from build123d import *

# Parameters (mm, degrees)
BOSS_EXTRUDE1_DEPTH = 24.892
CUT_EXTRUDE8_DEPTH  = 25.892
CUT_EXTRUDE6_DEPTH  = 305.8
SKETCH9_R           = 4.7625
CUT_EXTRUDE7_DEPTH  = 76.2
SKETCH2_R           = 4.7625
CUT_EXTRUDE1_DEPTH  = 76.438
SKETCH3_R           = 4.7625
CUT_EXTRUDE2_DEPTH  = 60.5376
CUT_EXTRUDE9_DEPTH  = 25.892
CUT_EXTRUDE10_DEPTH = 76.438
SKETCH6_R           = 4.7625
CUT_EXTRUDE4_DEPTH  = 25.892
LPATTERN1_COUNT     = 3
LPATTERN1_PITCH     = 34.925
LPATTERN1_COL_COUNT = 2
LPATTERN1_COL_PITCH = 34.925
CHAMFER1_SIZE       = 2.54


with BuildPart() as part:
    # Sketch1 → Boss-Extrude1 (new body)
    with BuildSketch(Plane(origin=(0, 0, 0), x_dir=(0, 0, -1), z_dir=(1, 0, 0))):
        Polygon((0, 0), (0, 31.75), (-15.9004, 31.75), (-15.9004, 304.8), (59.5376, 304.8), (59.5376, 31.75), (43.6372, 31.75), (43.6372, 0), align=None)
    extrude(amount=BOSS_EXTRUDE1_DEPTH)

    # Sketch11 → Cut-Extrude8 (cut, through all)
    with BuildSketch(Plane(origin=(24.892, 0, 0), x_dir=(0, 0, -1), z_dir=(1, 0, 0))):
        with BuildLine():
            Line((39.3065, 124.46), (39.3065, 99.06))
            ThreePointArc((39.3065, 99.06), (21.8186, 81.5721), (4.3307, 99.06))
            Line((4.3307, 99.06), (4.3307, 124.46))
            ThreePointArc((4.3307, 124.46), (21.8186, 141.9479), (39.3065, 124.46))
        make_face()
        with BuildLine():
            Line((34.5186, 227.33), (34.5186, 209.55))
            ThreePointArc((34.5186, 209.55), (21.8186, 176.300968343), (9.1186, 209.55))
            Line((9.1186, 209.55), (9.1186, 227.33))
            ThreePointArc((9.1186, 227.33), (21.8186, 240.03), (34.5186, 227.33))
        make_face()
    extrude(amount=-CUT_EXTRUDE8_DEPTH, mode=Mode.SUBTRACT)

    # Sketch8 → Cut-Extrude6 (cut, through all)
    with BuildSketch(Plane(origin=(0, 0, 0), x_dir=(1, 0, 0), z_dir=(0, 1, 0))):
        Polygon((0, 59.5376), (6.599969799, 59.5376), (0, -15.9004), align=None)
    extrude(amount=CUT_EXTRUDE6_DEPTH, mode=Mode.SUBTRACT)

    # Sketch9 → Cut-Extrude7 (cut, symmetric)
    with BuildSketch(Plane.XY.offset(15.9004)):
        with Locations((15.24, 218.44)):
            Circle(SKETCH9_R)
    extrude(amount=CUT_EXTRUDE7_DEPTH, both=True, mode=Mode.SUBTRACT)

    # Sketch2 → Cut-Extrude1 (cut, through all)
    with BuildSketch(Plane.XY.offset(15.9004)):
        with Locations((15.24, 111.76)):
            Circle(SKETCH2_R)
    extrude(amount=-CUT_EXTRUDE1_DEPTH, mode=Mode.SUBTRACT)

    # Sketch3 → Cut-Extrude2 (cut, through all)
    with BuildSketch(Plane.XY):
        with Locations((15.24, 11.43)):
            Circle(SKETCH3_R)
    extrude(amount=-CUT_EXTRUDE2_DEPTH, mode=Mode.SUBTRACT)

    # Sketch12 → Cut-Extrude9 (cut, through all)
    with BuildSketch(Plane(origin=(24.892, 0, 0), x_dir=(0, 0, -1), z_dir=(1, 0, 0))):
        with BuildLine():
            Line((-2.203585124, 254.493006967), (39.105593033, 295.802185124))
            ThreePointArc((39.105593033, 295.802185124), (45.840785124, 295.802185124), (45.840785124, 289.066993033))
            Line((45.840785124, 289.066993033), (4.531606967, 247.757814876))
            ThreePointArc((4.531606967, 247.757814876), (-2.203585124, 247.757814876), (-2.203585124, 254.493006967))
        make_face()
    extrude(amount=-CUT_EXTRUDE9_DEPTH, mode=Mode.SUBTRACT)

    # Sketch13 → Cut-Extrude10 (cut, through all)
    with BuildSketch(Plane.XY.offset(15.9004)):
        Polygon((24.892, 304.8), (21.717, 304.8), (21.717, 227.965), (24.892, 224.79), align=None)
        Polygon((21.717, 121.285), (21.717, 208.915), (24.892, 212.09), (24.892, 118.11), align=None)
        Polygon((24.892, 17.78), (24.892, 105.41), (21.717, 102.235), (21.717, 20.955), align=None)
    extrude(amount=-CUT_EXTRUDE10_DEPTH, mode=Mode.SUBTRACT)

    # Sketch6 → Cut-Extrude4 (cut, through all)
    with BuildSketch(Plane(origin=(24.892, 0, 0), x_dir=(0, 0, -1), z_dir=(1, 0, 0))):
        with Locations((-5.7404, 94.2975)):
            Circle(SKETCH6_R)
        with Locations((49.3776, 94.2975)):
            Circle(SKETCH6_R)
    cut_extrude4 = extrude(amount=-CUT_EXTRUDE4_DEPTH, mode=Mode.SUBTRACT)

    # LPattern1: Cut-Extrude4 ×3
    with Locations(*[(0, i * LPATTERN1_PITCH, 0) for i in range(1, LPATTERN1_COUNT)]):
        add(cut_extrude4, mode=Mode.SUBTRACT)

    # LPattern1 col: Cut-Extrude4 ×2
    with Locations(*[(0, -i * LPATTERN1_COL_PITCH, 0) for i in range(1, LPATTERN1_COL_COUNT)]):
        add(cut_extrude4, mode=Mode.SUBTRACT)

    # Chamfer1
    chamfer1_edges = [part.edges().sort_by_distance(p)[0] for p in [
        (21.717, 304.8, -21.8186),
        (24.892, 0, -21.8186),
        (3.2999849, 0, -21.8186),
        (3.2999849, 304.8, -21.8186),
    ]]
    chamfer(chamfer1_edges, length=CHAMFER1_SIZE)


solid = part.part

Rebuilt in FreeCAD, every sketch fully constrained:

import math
import FreeCAD as App
import Part
import Sketcher

V = App.Vector
Q = App.Units.Quantity


def edges_at(feature, points):
    """Names of the edges that pass closest to the given points."""
    edges = feature.Shape.Edges
    near = lambda p: min(range(len(edges)), key=lambda i: edges[i].distToShape(Part.Vertex(*p))[0])
    return sorted({f"Edge{near(p) + 1}" for p in points})

doc = App.newDocument("Part")
body = doc.addObject("PartDesign::Body", "Body")

sketch1 = body.newObject("Sketcher::SketchObject", "Sketch")
sketch1.AttachmentSupport = (doc.getObject("YZ_Plane"), [""])
sketch1.MapMode = "FlatFace"
sketch1.addGeometry([
    Part.LineSegment(V(31.75, 0, 0), V(0, 0, 0)),
    Part.LineSegment(V(0, 0, 0), V(0, -43.6372, 0)),
    Part.LineSegment(V(0, -43.6372, 0), V(31.75, -43.6372, 0)),
    Part.LineSegment(V(31.75, -43.6372, 0), V(31.75, -59.5376, 0)),
    Part.LineSegment(V(31.75, -59.5376, 0), V(304.8, -59.5376, 0)),
    Part.LineSegment(V(304.8, -59.5376, 0), V(304.8, 15.9004, 0)),
    Part.LineSegment(V(304.8, 15.9004, 0), V(31.75, 15.9004, 0)),
    Part.LineSegment(V(31.75, 15.9004, 0), V(31.75, 0, 0)),
], False)
sketch1.addConstraint([
    Sketcher.Constraint("Coincident", 0, 2, 1, 1),
    Sketcher.Constraint("Coincident", 1, 2, 2, 1),
    Sketcher.Constraint("Coincident", 2, 2, 3, 1),
    Sketcher.Constraint("Coincident", 3, 2, 4, 1),
    Sketcher.Constraint("Coincident", 4, 2, 5, 1),
    Sketcher.Constraint("Coincident", 5, 2, 6, 1),
    Sketcher.Constraint("Coincident", 6, 2, 7, 1),
    Sketcher.Constraint("Coincident", 7, 2, 0, 1),
    Sketcher.Constraint("Horizontal", 0),
    Sketcher.Constraint("Vertical", 1),
    Sketcher.Constraint("Horizontal", 2),
    Sketcher.Constraint("Vertical", 3),
    Sketcher.Constraint("Horizontal", 4),
    Sketcher.Constraint("Vertical", 5),
    Sketcher.Constraint("Horizontal", 6),
    Sketcher.Constraint("Vertical", 7),
    Sketcher.Constraint("Coincident", 0, 2, -1, 1),
    Sketcher.Constraint("Vertical", 3, 2, 6, 2),
    Sketcher.Constraint("Equal", 3, 7),
    Sketcher.Constraint("DistanceX", -1, 1, 4, 2, Q("12 in")),
    Sketcher.Constraint("DistanceX", 0, 2, 0, 1, Q("1.25 in")),
    Sketcher.Constraint("DistanceY", 5, 1, 5, 2, Q("2.97 in")),
    Sketcher.Constraint("DistanceY", 1, 2, 1, 1, Q("1.718 in")),
])
pad1 = body.newObject("PartDesign::Pad", "Pad")
pad1.Profile = sketch1
pad1.Length = Q("0.98 in")

sketch2 = body.newObject("Sketcher::SketchObject", "Sketch001")
sketch2.AttachmentSupport = (doc.getObject("YZ_Plane"), [""])
sketch2.MapMode = "FlatFace"
sketch2.AttachmentOffset = App.Placement(V(0, 0, 0.98 * 25.4), App.Rotation())
sketch2.addGeometry([
    Part.LineSegment(V(99.06, -39.3065, 0), V(124.46, -39.3065, 0)),
    Part.ArcOfCircle(Part.Circle(V(124.46, -21.8186, 0), V(0, 0, 1), 17.4879), math.radians(-90), math.radians(90)),
    Part.LineSegment(V(124.46, -4.3307, 0), V(99.06, -4.3307, 0)),
    Part.ArcOfCircle(Part.Circle(V(99.06, -21.8186, 0), V(0, 0, 1), 17.4879), math.radians(90), math.radians(270)),
    Part.LineSegment(V(209.55, -34.5186, 0), V(227.33, -34.5186, 0)),
    Part.ArcOfCircle(Part.Circle(V(227.33, -21.8186, 0), V(0, 0, 1), 12.7), math.radians(-90), math.radians(90)),
    Part.LineSegment(V(227.33, -9.1186, 0), V(209.55, -9.1186, 0)),
    Part.ArcOfCircle(Part.Circle(V(195.350968, -21.8186, 0), V(0, 0, 1), 19.05), math.radians(41.810315), math.radians(318.189685)),
], False)
sketch2.addConstraint([
    Sketcher.Constraint("Tangent", 0, 2, 1, 1),
    Sketcher.Constraint("Tangent", 1, 2, 2, 1),
    Sketcher.Constraint("Tangent", 2, 2, 3, 1),
    Sketcher.Constraint("Tangent", 3, 2, 0, 1),
    Sketcher.Constraint("Tangent", 4, 2, 5, 1),
    Sketcher.Constraint("Tangent", 5, 2, 6, 1),
    Sketcher.Constraint("Coincident", 6, 2, 7, 1),
    Sketcher.Constraint("Coincident", 7, 2, 4, 1),
    Sketcher.Constraint("Horizontal", 0),
    Sketcher.Constraint("Horizontal", 2),
    Sketcher.Constraint("Horizontal", 4),
    Sketcher.Constraint("Horizontal", 6),
    Sketcher.Constraint("Horizontal", 3, 3, 5, 3),
    Sketcher.Constraint("Horizontal", 5, 3, 7, 3),
    Sketcher.Constraint("Radius", 5, Q("0.5 in")),
    Sketcher.Constraint("DistanceX", 0, 1, 0, 2, Q("1 in")),
    Sketcher.Constraint("Radius", 7, Q("0.75 in")),
    Sketcher.Constraint("DistanceX", 4, 1, 4, 2, Q("0.7 in")),
    Sketcher.Constraint("DistanceX", -1, 1, 1, 3, Q("4.9 in")),
    Sketcher.Constraint("Radius", 1, Q("0.6885 in")),
    Sketcher.Constraint("DistanceX", -1, 1, 5, 3, Q("8.95 in")),
    Sketcher.Constraint("DistanceY", 1, 3, -1, 1, Q("0.859 in")),
])
pocket1 = body.newObject("PartDesign::Pocket", "Pocket")
pocket1.Profile = sketch2
pocket1.Type = "ThroughAll"

sketch3 = body.newObject("Sketcher::SketchObject", "Sketch002")
sketch3.AttachmentSupport = (doc.getObject("XZ_Plane"), [""])
sketch3.MapMode = "FlatFace"
sketch3.addGeometry([
    Part.LineSegment(V(6.59997, -59.5376, 0), V(0, -59.5376, 0)),
    Part.LineSegment(V(0, -59.5376, 0), V(0, 15.9004, 0)),
    Part.LineSegment(V(0, 15.9004, 0), V(6.59997, -59.5376, 0)),
], False)
sketch3.addConstraint([
    Sketcher.Constraint("Coincident", 0, 2, 1, 1),
    Sketcher.Constraint("Coincident", 1, 2, 2, 1),
    Sketcher.Constraint("Coincident", 2, 2, 0, 1),
    Sketcher.Constraint("Horizontal", 0),
    Sketcher.Constraint("Vertical", 1),
    Sketcher.Constraint("PointOnObject", 0, 2, -2),
    Sketcher.Constraint("Angle", 2, Q("-85 deg")),
    Sketcher.Constraint("DistanceY", 1, 1, 1, 2, Q("2.97 in")),
    Sketcher.Constraint("DistanceY", 0, 2, -1, 1, Q("2.344 in")),
])
pocket2 = body.newObject("PartDesign::Pocket", "Pocket001")
pocket2.Profile = sketch3
pocket2.Type = "ThroughAll"

sketch4 = body.newObject("Sketcher::SketchObject", "Sketch003")
sketch4.AttachmentSupport = (doc.getObject("XY_Plane"), [""])
sketch4.MapMode = "FlatFace"
sketch4.AttachmentOffset = App.Placement(V(0, 0, 0.626 * 25.4), App.Rotation())
sketch4.addGeometry(Part.Circle(V(15.24, 218.44, 0), V(0, 0, 1), 4.7625), False)
sketch4.addConstraint([
    Sketcher.Constraint("Diameter", 0, Q("0.375 in")),
    Sketcher.Constraint("DistanceX", -1, 1, 0, 3, Q("0.6 in")),
    Sketcher.Constraint("DistanceY", -1, 1, 0, 3, Q("8.6 in")),
])
pocket3 = body.newObject("PartDesign::Pocket", "Pocket002")
pocket3.Profile = sketch4
pocket3.Length = Q("6 in")
pocket3.Midplane = True

sketch5 = body.newObject("Sketcher::SketchObject", "Sketch004")
sketch5.AttachmentSupport = (doc.getObject("XY_Plane"), [""])
sketch5.MapMode = "FlatFace"
sketch5.AttachmentOffset = App.Placement(V(0, 0, 0.626 * 25.4), App.Rotation())
sketch5.addGeometry(Part.Circle(V(15.24, 111.76, 0), V(0, 0, 1), 4.7625), False)
sketch5.addConstraint([
    Sketcher.Constraint("Diameter", 0, Q("0.375 in")),
    Sketcher.Constraint("DistanceX", -1, 1, 0, 3, Q("0.6 in")),
    Sketcher.Constraint("DistanceY", -1, 1, 0, 3, Q("4.4 in")),
])
pocket4 = body.newObject("PartDesign::Pocket", "Pocket003")
pocket4.Profile = sketch5
pocket4.Type = "ThroughAll"

sketch6 = body.newObject("Sketcher::SketchObject", "Sketch005")
sketch6.AttachmentSupport = (doc.getObject("XY_Plane"), [""])
sketch6.MapMode = "FlatFace"
sketch6.addGeometry(Part.Circle(V(15.24, 11.43, 0), V(0, 0, 1), 4.7625), False)
sketch6.addConstraint([
    Sketcher.Constraint("Diameter", 0, Q("0.375 in")),
    Sketcher.Constraint("DistanceX", -1, 1, 0, 3, Q("0.6 in")),
    Sketcher.Constraint("DistanceY", -1, 1, 0, 3, Q("0.45 in")),
])
pocket5 = body.newObject("PartDesign::Pocket", "Pocket004")
pocket5.Profile = sketch6
pocket5.Type = "ThroughAll"

sketch7 = body.newObject("Sketcher::SketchObject", "Sketch006")
sketch7.AttachmentSupport = (doc.getObject("YZ_Plane"), [""])
sketch7.MapMode = "FlatFace"
sketch7.AttachmentOffset = App.Placement(V(0, 0, 0.98 * 25.4), App.Rotation())
sketch7.addGeometry([
    Part.LineSegment(V(295.802185, -39.105593, 0), V(254.493007, 2.203585, 0)),
    Part.ArcOfCircle(Part.Circle(V(251.125411, -1.164011, 0), V(0, 0, 1), 4.7625), math.radians(45), math.radians(225)),
    Part.LineSegment(V(247.757815, -4.531607, 0), V(289.066993, -45.840785, 0)),
    Part.ArcOfCircle(Part.Circle(V(292.434589, -42.473189, 0), V(0, 0, 1), 4.7625), math.radians(-135), math.radians(45)),
], False)
sketch7.addConstraint([
    Sketcher.Constraint("Tangent", 0, 2, 1, 1),
    Sketcher.Constraint("Tangent", 1, 2, 2, 1),
    Sketcher.Constraint("Tangent", 2, 2, 3, 1),
    Sketcher.Constraint("Tangent", 3, 2, 0, 1),
    Sketcher.Constraint("Equal", 1, 3),
    Sketcher.Constraint("Angle", 0, Q("135 deg")),
    Sketcher.Constraint("Radius", 1, Q("0.1875 in")),
    Sketcher.Constraint("Distance", 0, Q("2.3 in")),
    Sketcher.Constraint("DistanceX", -1, 1, 1, 3, 251.125411),
    Sketcher.Constraint("DistanceY", 1, 3, -1, 1, 1.164011),
])
pocket6 = body.newObject("PartDesign::Pocket", "Pocket005")
pocket6.Profile = sketch7
pocket6.Type = "ThroughAll"

sketch8 = body.newObject("Sketcher::SketchObject", "Sketch007")
sketch8.AttachmentSupport = (doc.getObject("XY_Plane"), [""])
sketch8.MapMode = "FlatFace"
sketch8.AttachmentOffset = App.Placement(V(0, 0, 0.626 * 25.4), App.Rotation())
sketch8.addGeometry([
    Part.LineSegment(V(24.892, 304.8, 0), V(21.717, 304.8, 0)),
    Part.LineSegment(V(21.717, 304.8, 0), V(21.717, 227.965, 0)),
    Part.LineSegment(V(21.717, 227.965, 0), V(24.892, 224.79, 0)),
    Part.LineSegment(V(24.892, 224.79, 0), V(24.892, 304.8, 0)),
    Part.LineSegment(V(21.717, 208.915, 0), V(21.717, 121.285, 0)),
    Part.LineSegment(V(21.717, 121.285, 0), V(24.892, 118.11, 0)),
    Part.LineSegment(V(24.892, 118.11, 0), V(24.892, 212.09, 0)),
    Part.LineSegment(V(24.892, 212.09, 0), V(21.717, 208.915, 0)),
    Part.LineSegment(V(24.892, 17.78, 0), V(24.892, 105.41, 0)),
    Part.LineSegment(V(24.892, 105.41, 0), V(21.717, 102.235, 0)),
    Part.LineSegment(V(21.717, 102.235, 0), V(21.717, 20.955, 0)),
    Part.LineSegment(V(21.717, 20.955, 0), V(24.892, 17.78, 0)),
], False)
sketch8.addConstraint([
    Sketcher.Constraint("Coincident", 0, 2, 1, 1),
    Sketcher.Constraint("Coincident", 1, 2, 2, 1),
    Sketcher.Constraint("Coincident", 2, 2, 3, 1),
    Sketcher.Constraint("Coincident", 3, 2, 0, 1),
    Sketcher.Constraint("Coincident", 4, 2, 5, 1),
    Sketcher.Constraint("Coincident", 5, 2, 6, 1),
    Sketcher.Constraint("Coincident", 6, 2, 7, 1),
    Sketcher.Constraint("Coincident", 7, 2, 4, 1),
    Sketcher.Constraint("Coincident", 8, 2, 9, 1),
    Sketcher.Constraint("Coincident", 9, 2, 10, 1),
    Sketcher.Constraint("Coincident", 10, 2, 11, 1),
    Sketcher.Constraint("Coincident", 11, 2, 8, 1),
    Sketcher.Constraint("Horizontal", 0),
    Sketcher.Constraint("Vertical", 1),
    Sketcher.Constraint("Vertical", 3),
    Sketcher.Constraint("Vertical", 4),
    Sketcher.Constraint("Vertical", 6),
    Sketcher.Constraint("Vertical", 8),
    Sketcher.Constraint("Vertical", 10),
    Sketcher.Constraint("Parallel", 2, 5),
    Sketcher.Constraint("Perpendicular", 5, 7),
    Sketcher.Constraint("Parallel", 7, 9),
    Sketcher.Constraint("Perpendicular", 9, 11),
    Sketcher.Constraint("Vertical", 1, 2, 4, 2),
    Sketcher.Constraint("Vertical", 3, 2, 5, 2),
    Sketcher.Constraint("Vertical", 6, 2, 8, 2),
    Sketcher.Constraint("Vertical", 7, 2, 9, 2),
    Sketcher.Constraint("Equal", 4, 8),
    Sketcher.Constraint("Equal", 5, 7),
    Sketcher.Constraint("DistanceY", 6, 1, 6, 2, Q("3.7 in")),
    Sketcher.Constraint("DistanceY", 10, 2, 10, 1, Q("3.2 in")),
    Sketcher.Constraint("DistanceY", -1, 1, 0, 2, Q("12 in")),
    Sketcher.Constraint("DistanceY", 3, 1, 3, 2, Q("3.15 in")),
    Sketcher.Constraint("DistanceY", -1, 1, 11, 2, Q("0.7 in")),
    Sketcher.Constraint("DistanceY", 4, 2, 1, 2, Q("4.2 in")),
    Sketcher.Constraint("DistanceX", -1, 1, 2, 2, Q("0.98 in")),
])
pocket7 = body.newObject("PartDesign::Pocket", "Pocket006")
pocket7.Profile = sketch8
pocket7.Type = "ThroughAll"

sketch9 = body.newObject("Sketcher::SketchObject", "Sketch008")
sketch9.AttachmentSupport = (doc.getObject("YZ_Plane"), [""])
sketch9.MapMode = "FlatFace"
sketch9.AttachmentOffset = App.Placement(V(0, 0, 0.98 * 25.4), App.Rotation())
sketch9.addGeometry([
    Part.Circle(V(94.2975, 5.7404, 0), V(0, 0, 1), 4.7625),
    Part.Circle(V(94.2975, -49.3776, 0), V(0, 0, 1), 4.7625),
], False)
sketch9.addConstraint([
    Sketcher.Constraint("Equal", 0, 1),
    Sketcher.Constraint("Vertical", 0, 3, 1, 3),
    Sketcher.Constraint("Diameter", 0, Q("0.375 in")),
    Sketcher.Constraint("DistanceY", 1, 3, 0, 3, Q("2.17 in")),
    Sketcher.Constraint("DistanceY", -1, 1, 0, 3, Q("0.226 in")),
    Sketcher.Constraint("DistanceX", -1, 1, 0, 3, Q("3.7125 in")),
])
pocket8 = body.newObject("PartDesign::Pocket", "Pocket007")
pocket8.Profile = sketch9
pocket8.Type = "ThroughAll"
doc.recompute()

linearpattern = body.newObject("PartDesign::LinearPattern", "LinearPattern")
linearpattern.Originals = [pocket8]
linearpattern.Direction = (doc.getObject("Y_Axis"), [""])
linearpattern.Mode = "offset"
linearpattern.Offset = Q("1.375 in")
linearpattern.Occurrences = 3
body.Tip = linearpattern
doc.recompute()

linearpattern2 = body.newObject("PartDesign::LinearPattern", "LinearPattern001")
linearpattern2.Originals = [pocket8]
linearpattern2.Direction = (doc.getObject("Y_Axis"), [""])
linearpattern2.Mode = "offset"
linearpattern2.Offset = Q("1.375 in")
linearpattern2.Occurrences = 2
linearpattern2.Reversed = True
body.Tip = linearpattern2
doc.recompute()

chamfer = body.newObject("PartDesign::Chamfer", "Chamfer")
chamfer.Base = (linearpattern2, edges_at(linearpattern2, [
    (21.717, 304.8, -21.819),
    (24.892, 0, -21.819),
    (3.3, 0, -21.819),
    (3.3, 304.8, -21.819),
]))
chamfer.Size = Q("0.1 in")

doc.recompute()
